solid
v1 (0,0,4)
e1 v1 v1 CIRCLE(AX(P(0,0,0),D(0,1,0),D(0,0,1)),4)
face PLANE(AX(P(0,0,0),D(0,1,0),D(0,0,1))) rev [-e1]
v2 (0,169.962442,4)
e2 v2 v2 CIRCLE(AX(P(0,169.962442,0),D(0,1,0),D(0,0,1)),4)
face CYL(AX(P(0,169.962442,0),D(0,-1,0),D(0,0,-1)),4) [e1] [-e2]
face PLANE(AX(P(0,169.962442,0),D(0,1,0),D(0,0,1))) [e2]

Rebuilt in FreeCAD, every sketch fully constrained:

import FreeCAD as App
import Part
import Sketcher
from FreeCAD import Vector

doc = App.newDocument("Part")
body = doc.addObject("PartDesign::Body", "Body")

# Sketch on XZ plane
sketch1 = body.newObject("Sketcher::SketchObject", "Sketch")
sketch1.AttachmentSupport = (doc.getObject("XZ_Plane"), [""])
sketch1.MapMode = "FlatFace"
sketch1.addGeometry(Part.Circle(Vector(0, 0, 0), Vector(0, 0, 1), 4), False)
sketch1.addConstraint([
    Sketcher.Constraint("Coincident", 0, 3, -1, 1),
    Sketcher.Constraint("Diameter", 0, 8.0),
])
pad1 = body.newObject("PartDesign::Pad", "Pad")
pad1.Profile = sketch1
pad1.Length = 169.962442
pad1.Reversed = True

doc.recompute()
